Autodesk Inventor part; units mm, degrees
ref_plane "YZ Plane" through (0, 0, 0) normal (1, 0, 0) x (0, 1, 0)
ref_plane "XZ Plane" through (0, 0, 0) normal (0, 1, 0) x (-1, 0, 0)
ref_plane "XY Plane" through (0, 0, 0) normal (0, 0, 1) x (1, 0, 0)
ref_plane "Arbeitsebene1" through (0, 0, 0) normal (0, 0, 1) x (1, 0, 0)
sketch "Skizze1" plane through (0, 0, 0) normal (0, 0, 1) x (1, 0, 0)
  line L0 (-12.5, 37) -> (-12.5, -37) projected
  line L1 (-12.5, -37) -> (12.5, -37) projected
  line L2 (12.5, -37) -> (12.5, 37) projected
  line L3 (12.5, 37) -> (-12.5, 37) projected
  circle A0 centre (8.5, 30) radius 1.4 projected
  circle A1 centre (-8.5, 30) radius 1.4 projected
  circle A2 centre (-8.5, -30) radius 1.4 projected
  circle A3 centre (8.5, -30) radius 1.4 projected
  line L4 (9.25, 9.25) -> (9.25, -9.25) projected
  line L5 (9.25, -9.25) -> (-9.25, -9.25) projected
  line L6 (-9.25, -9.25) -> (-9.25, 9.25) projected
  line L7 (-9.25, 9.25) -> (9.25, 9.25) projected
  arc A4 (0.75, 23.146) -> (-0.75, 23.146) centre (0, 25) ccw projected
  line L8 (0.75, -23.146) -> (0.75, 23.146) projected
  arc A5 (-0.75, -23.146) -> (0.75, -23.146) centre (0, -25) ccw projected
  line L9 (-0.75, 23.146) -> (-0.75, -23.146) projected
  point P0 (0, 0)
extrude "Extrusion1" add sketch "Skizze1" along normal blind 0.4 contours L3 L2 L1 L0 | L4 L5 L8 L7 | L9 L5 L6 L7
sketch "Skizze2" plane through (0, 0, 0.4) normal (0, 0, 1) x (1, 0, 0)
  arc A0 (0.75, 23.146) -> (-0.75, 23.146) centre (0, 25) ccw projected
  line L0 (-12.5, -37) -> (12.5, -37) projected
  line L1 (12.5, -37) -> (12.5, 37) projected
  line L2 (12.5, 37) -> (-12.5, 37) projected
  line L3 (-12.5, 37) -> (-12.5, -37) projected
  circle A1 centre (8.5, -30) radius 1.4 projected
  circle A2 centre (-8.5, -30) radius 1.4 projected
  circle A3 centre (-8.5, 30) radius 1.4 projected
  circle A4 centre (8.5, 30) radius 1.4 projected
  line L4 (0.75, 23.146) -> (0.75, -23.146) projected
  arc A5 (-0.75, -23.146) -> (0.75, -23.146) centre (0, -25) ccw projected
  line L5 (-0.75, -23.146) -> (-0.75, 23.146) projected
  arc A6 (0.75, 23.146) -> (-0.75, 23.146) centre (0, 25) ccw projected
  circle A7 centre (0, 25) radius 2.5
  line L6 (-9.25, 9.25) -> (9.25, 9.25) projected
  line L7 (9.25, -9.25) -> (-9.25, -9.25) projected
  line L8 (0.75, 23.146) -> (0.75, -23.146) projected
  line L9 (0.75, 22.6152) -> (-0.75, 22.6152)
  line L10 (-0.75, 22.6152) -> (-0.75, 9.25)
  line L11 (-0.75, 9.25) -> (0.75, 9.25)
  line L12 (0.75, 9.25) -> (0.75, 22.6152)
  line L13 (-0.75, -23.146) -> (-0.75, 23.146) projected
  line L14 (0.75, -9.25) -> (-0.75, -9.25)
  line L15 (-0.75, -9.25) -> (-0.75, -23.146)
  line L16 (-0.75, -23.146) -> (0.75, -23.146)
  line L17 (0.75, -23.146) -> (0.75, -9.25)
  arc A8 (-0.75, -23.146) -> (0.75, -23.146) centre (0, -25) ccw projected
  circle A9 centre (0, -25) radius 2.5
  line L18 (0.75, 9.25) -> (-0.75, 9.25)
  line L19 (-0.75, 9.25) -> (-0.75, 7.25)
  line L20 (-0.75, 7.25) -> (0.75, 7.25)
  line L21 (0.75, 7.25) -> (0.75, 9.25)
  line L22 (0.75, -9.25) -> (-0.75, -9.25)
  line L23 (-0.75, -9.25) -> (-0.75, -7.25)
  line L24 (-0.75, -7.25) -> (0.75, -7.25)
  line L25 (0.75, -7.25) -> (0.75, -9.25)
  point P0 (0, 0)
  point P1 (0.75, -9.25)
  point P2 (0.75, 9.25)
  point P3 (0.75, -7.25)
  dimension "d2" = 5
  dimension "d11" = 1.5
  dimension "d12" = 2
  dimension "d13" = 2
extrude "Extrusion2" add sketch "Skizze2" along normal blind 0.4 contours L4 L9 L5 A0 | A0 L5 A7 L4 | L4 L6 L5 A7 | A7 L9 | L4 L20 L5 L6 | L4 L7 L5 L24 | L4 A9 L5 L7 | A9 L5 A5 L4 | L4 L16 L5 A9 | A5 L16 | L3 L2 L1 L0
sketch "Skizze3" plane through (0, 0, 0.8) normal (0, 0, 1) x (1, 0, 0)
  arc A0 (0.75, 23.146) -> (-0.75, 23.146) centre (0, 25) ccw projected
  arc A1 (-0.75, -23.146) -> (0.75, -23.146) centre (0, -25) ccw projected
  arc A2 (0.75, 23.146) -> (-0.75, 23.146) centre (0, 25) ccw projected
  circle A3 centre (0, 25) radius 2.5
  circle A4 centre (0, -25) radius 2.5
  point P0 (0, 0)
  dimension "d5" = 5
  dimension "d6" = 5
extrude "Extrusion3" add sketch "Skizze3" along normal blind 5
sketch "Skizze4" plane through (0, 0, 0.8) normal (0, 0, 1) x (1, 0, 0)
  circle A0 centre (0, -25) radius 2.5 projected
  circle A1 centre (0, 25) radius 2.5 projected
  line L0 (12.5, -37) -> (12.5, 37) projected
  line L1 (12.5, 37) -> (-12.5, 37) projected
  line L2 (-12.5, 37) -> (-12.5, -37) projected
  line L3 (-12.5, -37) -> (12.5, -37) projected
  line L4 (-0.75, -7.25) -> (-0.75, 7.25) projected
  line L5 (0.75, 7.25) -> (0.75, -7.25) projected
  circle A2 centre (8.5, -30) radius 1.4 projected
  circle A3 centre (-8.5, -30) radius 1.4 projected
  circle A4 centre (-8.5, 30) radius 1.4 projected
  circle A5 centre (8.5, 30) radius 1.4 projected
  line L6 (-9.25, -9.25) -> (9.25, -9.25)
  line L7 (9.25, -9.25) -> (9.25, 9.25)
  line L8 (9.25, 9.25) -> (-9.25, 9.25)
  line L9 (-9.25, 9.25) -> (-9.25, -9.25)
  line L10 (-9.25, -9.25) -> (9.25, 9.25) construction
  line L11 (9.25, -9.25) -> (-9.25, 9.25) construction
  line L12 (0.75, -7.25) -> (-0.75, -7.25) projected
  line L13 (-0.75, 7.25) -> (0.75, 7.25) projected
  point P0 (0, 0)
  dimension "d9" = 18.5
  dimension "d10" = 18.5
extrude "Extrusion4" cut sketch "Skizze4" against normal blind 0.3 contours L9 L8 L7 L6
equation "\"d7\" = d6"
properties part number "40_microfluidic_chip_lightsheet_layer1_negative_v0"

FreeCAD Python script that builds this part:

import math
import FreeCAD as App
import Part
import Sketcher
from FreeCAD import Vector


def add_polygon(sketch, points):
    """Adds a closed chain of lines whose ends are joined by coincident constraints."""
    first, n = sketch.GeometryCount, len(points)
    for a, b in zip(points, points[1:] + points[:1]):
        sketch.addGeometry(Part.LineSegment(App.Vector(*a, 0), App.Vector(*b, 0)), False)
    for i in range(n):
        sketch.addConstraint(Sketcher.Constraint("Coincident", first + i, 2, first + (i + 1) % n, 1))

doc = App.newDocument("Part")
body = doc.addObject("PartDesign::Body", "Body")

sketch1 = doc.addObject("Sketcher::SketchObject", "Sketch")
body.addObject(sketch1)
sketch1.AttachmentSupport = (doc.XY_Plane, [""])
sketch1.MapMode = "FlatFace"
add_polygon(sketch1, [(12.5, 37), (-12.5, 37), (-12.5, -37), (12.5, -37)])
sketch1.addGeometry(Part.Circle(Vector(-8.5, -30, 0), Vector(0, 0, 1), 1.4), False)
sketch1.addGeometry(Part.Circle(Vector(8.5, -30, 0), Vector(0, 0, 1), 1.4), False)
sketch1.addGeometry(Part.Circle(Vector(-8.5, 30, 0), Vector(0, 0, 1), 1.4), False)
sketch1.addGeometry(Part.LineSegment(Vector(0.8, 23.1, 0), Vector(0.8, -23.1, 0)), False)
sketch1.addGeometry(Part.ArcOfCircle(Part.Circle(Vector(0, -25, 0), Vector(0, 0, 1), 2), math.radians(112), math.radians(428)), False)
sketch1.addGeometry(Part.LineSegment(Vector(-0.8, -23.1, 0), Vector(-0.8, 23.1, 0)), False)
sketch1.addGeometry(Part.ArcOfCircle(Part.Circle(Vector(0, 25, 0), Vector(0, 0, 1), 2), math.radians(-68), math.radians(248)), False)
sketch1.addGeometry(Part.Circle(Vector(8.5, 30, 0), Vector(0, 0, 1), 1.4), False)
sketch1.addConstraint([
    Sketcher.Constraint("Coincident", 7, 2, 8, 2),
    Sketcher.Constraint("Coincident", 8, 1, 9, 1),
    Sketcher.Constraint("Coincident", 9, 2, 10, 2),
    Sketcher.Constraint("Coincident", 10, 1, 7, 1),
    Sketcher.Constraint("Horizontal", 0),
    Sketcher.Constraint("Vertical", 1),
    Sketcher.Constraint("Horizontal", 2),
    Sketcher.Constraint("Vertical", 3),
    Sketcher.Constraint("Vertical", 7),
    Sketcher.Constraint("Vertical", 9),
    Sketcher.Constraint("Equal", 4, 5),
    Sketcher.Constraint("Equal", 5, 6),
    Sketcher.Constraint("Equal", 8, 10),
    Sketcher.Constraint("Equal", 6, 11),
    Sketcher.Constraint("Symmetric", 5, 3, 6, 3, -1, 1),
    Sketcher.Constraint("Symmetric", 8, 3, 10, 3, -1, 1),
    Sketcher.Constraint("Symmetric", 4, 3, 11, 3, -1, 1),
    Sketcher.Constraint("Symmetric", 0, 2, 2, 2, -1, 1),
    Sketcher.Constraint("Symmetric", 4, 3, 5, 3, -2),
    Sketcher.Constraint("Symmetric", 7, 2, 8, 1, -2),
    Sketcher.Constraint("Radius", 8, 2.0),
    Sketcher.Constraint("Diameter", 4, 2.8),
    Sketcher.Constraint("DistanceX", 0, 2, 0, 1, 25.0),
    Sketcher.Constraint("DistanceY", 1, 2, 1, 1, 74.0),
    Sketcher.Constraint("DistanceY", 4, 3, -1, 1, 30.0),
    Sketcher.Constraint("DistanceY", 8, 3, -1, 1, 25.0),
    Sketcher.Constraint("DistanceX", 4, 3, 5, 3, 17.0),
    Sketcher.Constraint("DistanceX", 8, 1, 7, 2, 1.5),
])
pad1 = doc.addObject("PartDesign::Pad", "Pad")
body.addObject(pad1)
pad1.Profile = sketch1
pad1.Length = 0.4

sketch2 = doc.addObject("Sketcher::SketchObject", "Sketch001")
body.addObject(sketch2)
sketch2.AttachmentSupport = (doc.XY_Plane, [""])
sketch2.MapMode = "FlatFace"
sketch2.AttachmentOffset = App.Placement(Vector(0, 0, 0.4), App.Rotation())
add_polygon(sketch2, [(-12.5, 37), (-12.5, -37), (12.5, -37), (12.5, 37)])
sketch2.addGeometry(Part.Circle(Vector(-8.5, -30, 0), Vector(0, 0, 1), 1.4), False)
sketch2.addGeometry(Part.Circle(Vector(8.5, -30, 0), Vector(0, 0, 1), 1.4), False)
sketch2.addGeometry(Part.Circle(Vector(-8.5, 30, 0), Vector(0, 0, 1), 1.4), False)
sketch2.addGeometry(Part.Circle(Vector(8.5, 30, 0), Vector(0, 0, 1), 1.4), False)
add_polygon(sketch2, [(-0.8, -7.2), (-0.8, 7.2), (0.8, 7.2), (0.8, -7.2)])
sketch2.addConstraint([
    Sketcher.Constraint("Vertical", 0),
    Sketcher.Constraint("Horizontal", 1),
    Sketcher.Constraint("Vertical", 2),
    Sketcher.Constraint("Horizontal", 3),
    Sketcher.Constraint("Vertical", 8),
    Sketcher.Constraint("Horizontal", 9),
    Sketcher.Constraint("Vertical", 10),
    Sketcher.Constraint("Horizontal", 11),
    Sketcher.Constraint("Equal", 4, 5),
    Sketcher.Constraint("Equal", 5, 6),
    Sketcher.Constraint("Equal", 6, 7),
    Sketcher.Constraint("Symmetric", 5, 3, 6, 3, -1, 1),
    Sketcher.Constraint("Symmetric", 4, 3, 7, 3, -1, 1),
    Sketcher.Constraint("Symmetric", 0, 2, 2, 2, -1, 1),
    Sketcher.Constraint("Symmetric", 8, 2, 10, 2, -1, 1),
    Sketcher.Constraint("Symmetric", 4, 3, 5, 3, -2),
    Sketcher.Constraint("DistanceX", 9, 1, 9, 2, 1.5),
    Sketcher.Constraint("Diameter", 4, 2.8),
    Sketcher.Constraint("DistanceX", 1, 1, 1, 2, 25.0),
    Sketcher.Constraint("DistanceY", 0, 2, 0, 1, 74.0),
    Sketcher.Constraint("DistanceY", 8, 1, 8, 2, 14.5),
    Sketcher.Constraint("DistanceY", 4, 3, -1, 1, 30.0),
    Sketcher.Constraint("DistanceX", 4, 3, 5, 3, 17.0),
])
pad2 = doc.addObject("PartDesign::Pad", "Pad001")
body.addObject(pad2)
pad2.Profile = sketch2
pad2.Length = 0.4

sketch3 = doc.addObject("Sketcher::SketchObject", "Sketch002")
body.addObject(sketch3)
sketch3.AttachmentSupport = (doc.XY_Plane, [""])
sketch3.MapMode = "FlatFace"
sketch3.AttachmentOffset = App.Placement(Vector(0, 0, 0.8), App.Rotation())
sketch3.addGeometry([
    Part.Circle(Vector(0, 25, 0), Vector(0, 0, 1), 2.5),
    Part.Circle(Vector(0, -25, 0), Vector(0, 0, 1), 2.5),
], False)
sketch3.addConstraint([
    Sketcher.Constraint("Equal", 0, 1),
    Sketcher.Constraint("Symmetric", 0, 3, 1, 3, -1, 1),
    Sketcher.Constraint("PointOnObject", 0, 3, -2),
    Sketcher.Constraint("Diameter", 0, 5.0),
    Sketcher.Constraint("DistanceY", -1, 1, 0, 3, 25.0),
])
pad3 = doc.addObject("PartDesign::Pad", "Pad002")
body.addObject(pad3)
pad3.Profile = sketch3
pad3.Length = 5

sketch4 = doc.addObject("Sketcher::SketchObject", "Sketch003")
body.addObject(sketch4)
sketch4.AttachmentSupport = (doc.XY_Plane, [""])
sketch4.MapMode = "FlatFace"
sketch4.AttachmentOffset = App.Placement(Vector(0, 0, 0.8), App.Rotation())
add_polygon(sketch4, [(-9.2, 9.2), (-9.2, -9.2), (9.2, -9.2), (9.2, 9.2)])
add_polygon(sketch4, [(0.8, -7.2), (-0.8, -7.2), (-0.8, 7.2), (0.8, 7.2)])
sketch4.addConstraint([
    Sketcher.Constraint("Vertical", 0),
    Sketcher.Constraint("Horizontal", 1),
    Sketcher.Constraint("Vertical", 2),
    Sketcher.Constraint("Horizontal", 3),
    Sketcher.Constraint("Horizontal", 4),
    Sketcher.Constraint("Vertical", 5),
    Sketcher.Constraint("Horizontal", 6),
    Sketcher.Constraint("Vertical", 7),
    Sketcher.Constraint("Symmetric", 0, 2, 2, 2, -1, 1),
    Sketcher.Constraint("Symmetric", 4, 2, 6, 2, -1, 1),
    Sketcher.Constraint("Equal", 3, 0),
    Sketcher.Constraint("DistanceX", 1, 1, 1, 2, 18.5),
    Sketcher.Constraint("DistanceX", 4, 2, 4, 1, 1.5),
    Sketcher.Constraint("DistanceY", 5, 1, 5, 2, 14.5),
])
pocket1 = doc.addObject("PartDesign::Pocket", "Pocket")
body.addObject(pocket1)
pocket1.Profile = sketch4
pocket1.Length = 0.3

doc.recompute()
